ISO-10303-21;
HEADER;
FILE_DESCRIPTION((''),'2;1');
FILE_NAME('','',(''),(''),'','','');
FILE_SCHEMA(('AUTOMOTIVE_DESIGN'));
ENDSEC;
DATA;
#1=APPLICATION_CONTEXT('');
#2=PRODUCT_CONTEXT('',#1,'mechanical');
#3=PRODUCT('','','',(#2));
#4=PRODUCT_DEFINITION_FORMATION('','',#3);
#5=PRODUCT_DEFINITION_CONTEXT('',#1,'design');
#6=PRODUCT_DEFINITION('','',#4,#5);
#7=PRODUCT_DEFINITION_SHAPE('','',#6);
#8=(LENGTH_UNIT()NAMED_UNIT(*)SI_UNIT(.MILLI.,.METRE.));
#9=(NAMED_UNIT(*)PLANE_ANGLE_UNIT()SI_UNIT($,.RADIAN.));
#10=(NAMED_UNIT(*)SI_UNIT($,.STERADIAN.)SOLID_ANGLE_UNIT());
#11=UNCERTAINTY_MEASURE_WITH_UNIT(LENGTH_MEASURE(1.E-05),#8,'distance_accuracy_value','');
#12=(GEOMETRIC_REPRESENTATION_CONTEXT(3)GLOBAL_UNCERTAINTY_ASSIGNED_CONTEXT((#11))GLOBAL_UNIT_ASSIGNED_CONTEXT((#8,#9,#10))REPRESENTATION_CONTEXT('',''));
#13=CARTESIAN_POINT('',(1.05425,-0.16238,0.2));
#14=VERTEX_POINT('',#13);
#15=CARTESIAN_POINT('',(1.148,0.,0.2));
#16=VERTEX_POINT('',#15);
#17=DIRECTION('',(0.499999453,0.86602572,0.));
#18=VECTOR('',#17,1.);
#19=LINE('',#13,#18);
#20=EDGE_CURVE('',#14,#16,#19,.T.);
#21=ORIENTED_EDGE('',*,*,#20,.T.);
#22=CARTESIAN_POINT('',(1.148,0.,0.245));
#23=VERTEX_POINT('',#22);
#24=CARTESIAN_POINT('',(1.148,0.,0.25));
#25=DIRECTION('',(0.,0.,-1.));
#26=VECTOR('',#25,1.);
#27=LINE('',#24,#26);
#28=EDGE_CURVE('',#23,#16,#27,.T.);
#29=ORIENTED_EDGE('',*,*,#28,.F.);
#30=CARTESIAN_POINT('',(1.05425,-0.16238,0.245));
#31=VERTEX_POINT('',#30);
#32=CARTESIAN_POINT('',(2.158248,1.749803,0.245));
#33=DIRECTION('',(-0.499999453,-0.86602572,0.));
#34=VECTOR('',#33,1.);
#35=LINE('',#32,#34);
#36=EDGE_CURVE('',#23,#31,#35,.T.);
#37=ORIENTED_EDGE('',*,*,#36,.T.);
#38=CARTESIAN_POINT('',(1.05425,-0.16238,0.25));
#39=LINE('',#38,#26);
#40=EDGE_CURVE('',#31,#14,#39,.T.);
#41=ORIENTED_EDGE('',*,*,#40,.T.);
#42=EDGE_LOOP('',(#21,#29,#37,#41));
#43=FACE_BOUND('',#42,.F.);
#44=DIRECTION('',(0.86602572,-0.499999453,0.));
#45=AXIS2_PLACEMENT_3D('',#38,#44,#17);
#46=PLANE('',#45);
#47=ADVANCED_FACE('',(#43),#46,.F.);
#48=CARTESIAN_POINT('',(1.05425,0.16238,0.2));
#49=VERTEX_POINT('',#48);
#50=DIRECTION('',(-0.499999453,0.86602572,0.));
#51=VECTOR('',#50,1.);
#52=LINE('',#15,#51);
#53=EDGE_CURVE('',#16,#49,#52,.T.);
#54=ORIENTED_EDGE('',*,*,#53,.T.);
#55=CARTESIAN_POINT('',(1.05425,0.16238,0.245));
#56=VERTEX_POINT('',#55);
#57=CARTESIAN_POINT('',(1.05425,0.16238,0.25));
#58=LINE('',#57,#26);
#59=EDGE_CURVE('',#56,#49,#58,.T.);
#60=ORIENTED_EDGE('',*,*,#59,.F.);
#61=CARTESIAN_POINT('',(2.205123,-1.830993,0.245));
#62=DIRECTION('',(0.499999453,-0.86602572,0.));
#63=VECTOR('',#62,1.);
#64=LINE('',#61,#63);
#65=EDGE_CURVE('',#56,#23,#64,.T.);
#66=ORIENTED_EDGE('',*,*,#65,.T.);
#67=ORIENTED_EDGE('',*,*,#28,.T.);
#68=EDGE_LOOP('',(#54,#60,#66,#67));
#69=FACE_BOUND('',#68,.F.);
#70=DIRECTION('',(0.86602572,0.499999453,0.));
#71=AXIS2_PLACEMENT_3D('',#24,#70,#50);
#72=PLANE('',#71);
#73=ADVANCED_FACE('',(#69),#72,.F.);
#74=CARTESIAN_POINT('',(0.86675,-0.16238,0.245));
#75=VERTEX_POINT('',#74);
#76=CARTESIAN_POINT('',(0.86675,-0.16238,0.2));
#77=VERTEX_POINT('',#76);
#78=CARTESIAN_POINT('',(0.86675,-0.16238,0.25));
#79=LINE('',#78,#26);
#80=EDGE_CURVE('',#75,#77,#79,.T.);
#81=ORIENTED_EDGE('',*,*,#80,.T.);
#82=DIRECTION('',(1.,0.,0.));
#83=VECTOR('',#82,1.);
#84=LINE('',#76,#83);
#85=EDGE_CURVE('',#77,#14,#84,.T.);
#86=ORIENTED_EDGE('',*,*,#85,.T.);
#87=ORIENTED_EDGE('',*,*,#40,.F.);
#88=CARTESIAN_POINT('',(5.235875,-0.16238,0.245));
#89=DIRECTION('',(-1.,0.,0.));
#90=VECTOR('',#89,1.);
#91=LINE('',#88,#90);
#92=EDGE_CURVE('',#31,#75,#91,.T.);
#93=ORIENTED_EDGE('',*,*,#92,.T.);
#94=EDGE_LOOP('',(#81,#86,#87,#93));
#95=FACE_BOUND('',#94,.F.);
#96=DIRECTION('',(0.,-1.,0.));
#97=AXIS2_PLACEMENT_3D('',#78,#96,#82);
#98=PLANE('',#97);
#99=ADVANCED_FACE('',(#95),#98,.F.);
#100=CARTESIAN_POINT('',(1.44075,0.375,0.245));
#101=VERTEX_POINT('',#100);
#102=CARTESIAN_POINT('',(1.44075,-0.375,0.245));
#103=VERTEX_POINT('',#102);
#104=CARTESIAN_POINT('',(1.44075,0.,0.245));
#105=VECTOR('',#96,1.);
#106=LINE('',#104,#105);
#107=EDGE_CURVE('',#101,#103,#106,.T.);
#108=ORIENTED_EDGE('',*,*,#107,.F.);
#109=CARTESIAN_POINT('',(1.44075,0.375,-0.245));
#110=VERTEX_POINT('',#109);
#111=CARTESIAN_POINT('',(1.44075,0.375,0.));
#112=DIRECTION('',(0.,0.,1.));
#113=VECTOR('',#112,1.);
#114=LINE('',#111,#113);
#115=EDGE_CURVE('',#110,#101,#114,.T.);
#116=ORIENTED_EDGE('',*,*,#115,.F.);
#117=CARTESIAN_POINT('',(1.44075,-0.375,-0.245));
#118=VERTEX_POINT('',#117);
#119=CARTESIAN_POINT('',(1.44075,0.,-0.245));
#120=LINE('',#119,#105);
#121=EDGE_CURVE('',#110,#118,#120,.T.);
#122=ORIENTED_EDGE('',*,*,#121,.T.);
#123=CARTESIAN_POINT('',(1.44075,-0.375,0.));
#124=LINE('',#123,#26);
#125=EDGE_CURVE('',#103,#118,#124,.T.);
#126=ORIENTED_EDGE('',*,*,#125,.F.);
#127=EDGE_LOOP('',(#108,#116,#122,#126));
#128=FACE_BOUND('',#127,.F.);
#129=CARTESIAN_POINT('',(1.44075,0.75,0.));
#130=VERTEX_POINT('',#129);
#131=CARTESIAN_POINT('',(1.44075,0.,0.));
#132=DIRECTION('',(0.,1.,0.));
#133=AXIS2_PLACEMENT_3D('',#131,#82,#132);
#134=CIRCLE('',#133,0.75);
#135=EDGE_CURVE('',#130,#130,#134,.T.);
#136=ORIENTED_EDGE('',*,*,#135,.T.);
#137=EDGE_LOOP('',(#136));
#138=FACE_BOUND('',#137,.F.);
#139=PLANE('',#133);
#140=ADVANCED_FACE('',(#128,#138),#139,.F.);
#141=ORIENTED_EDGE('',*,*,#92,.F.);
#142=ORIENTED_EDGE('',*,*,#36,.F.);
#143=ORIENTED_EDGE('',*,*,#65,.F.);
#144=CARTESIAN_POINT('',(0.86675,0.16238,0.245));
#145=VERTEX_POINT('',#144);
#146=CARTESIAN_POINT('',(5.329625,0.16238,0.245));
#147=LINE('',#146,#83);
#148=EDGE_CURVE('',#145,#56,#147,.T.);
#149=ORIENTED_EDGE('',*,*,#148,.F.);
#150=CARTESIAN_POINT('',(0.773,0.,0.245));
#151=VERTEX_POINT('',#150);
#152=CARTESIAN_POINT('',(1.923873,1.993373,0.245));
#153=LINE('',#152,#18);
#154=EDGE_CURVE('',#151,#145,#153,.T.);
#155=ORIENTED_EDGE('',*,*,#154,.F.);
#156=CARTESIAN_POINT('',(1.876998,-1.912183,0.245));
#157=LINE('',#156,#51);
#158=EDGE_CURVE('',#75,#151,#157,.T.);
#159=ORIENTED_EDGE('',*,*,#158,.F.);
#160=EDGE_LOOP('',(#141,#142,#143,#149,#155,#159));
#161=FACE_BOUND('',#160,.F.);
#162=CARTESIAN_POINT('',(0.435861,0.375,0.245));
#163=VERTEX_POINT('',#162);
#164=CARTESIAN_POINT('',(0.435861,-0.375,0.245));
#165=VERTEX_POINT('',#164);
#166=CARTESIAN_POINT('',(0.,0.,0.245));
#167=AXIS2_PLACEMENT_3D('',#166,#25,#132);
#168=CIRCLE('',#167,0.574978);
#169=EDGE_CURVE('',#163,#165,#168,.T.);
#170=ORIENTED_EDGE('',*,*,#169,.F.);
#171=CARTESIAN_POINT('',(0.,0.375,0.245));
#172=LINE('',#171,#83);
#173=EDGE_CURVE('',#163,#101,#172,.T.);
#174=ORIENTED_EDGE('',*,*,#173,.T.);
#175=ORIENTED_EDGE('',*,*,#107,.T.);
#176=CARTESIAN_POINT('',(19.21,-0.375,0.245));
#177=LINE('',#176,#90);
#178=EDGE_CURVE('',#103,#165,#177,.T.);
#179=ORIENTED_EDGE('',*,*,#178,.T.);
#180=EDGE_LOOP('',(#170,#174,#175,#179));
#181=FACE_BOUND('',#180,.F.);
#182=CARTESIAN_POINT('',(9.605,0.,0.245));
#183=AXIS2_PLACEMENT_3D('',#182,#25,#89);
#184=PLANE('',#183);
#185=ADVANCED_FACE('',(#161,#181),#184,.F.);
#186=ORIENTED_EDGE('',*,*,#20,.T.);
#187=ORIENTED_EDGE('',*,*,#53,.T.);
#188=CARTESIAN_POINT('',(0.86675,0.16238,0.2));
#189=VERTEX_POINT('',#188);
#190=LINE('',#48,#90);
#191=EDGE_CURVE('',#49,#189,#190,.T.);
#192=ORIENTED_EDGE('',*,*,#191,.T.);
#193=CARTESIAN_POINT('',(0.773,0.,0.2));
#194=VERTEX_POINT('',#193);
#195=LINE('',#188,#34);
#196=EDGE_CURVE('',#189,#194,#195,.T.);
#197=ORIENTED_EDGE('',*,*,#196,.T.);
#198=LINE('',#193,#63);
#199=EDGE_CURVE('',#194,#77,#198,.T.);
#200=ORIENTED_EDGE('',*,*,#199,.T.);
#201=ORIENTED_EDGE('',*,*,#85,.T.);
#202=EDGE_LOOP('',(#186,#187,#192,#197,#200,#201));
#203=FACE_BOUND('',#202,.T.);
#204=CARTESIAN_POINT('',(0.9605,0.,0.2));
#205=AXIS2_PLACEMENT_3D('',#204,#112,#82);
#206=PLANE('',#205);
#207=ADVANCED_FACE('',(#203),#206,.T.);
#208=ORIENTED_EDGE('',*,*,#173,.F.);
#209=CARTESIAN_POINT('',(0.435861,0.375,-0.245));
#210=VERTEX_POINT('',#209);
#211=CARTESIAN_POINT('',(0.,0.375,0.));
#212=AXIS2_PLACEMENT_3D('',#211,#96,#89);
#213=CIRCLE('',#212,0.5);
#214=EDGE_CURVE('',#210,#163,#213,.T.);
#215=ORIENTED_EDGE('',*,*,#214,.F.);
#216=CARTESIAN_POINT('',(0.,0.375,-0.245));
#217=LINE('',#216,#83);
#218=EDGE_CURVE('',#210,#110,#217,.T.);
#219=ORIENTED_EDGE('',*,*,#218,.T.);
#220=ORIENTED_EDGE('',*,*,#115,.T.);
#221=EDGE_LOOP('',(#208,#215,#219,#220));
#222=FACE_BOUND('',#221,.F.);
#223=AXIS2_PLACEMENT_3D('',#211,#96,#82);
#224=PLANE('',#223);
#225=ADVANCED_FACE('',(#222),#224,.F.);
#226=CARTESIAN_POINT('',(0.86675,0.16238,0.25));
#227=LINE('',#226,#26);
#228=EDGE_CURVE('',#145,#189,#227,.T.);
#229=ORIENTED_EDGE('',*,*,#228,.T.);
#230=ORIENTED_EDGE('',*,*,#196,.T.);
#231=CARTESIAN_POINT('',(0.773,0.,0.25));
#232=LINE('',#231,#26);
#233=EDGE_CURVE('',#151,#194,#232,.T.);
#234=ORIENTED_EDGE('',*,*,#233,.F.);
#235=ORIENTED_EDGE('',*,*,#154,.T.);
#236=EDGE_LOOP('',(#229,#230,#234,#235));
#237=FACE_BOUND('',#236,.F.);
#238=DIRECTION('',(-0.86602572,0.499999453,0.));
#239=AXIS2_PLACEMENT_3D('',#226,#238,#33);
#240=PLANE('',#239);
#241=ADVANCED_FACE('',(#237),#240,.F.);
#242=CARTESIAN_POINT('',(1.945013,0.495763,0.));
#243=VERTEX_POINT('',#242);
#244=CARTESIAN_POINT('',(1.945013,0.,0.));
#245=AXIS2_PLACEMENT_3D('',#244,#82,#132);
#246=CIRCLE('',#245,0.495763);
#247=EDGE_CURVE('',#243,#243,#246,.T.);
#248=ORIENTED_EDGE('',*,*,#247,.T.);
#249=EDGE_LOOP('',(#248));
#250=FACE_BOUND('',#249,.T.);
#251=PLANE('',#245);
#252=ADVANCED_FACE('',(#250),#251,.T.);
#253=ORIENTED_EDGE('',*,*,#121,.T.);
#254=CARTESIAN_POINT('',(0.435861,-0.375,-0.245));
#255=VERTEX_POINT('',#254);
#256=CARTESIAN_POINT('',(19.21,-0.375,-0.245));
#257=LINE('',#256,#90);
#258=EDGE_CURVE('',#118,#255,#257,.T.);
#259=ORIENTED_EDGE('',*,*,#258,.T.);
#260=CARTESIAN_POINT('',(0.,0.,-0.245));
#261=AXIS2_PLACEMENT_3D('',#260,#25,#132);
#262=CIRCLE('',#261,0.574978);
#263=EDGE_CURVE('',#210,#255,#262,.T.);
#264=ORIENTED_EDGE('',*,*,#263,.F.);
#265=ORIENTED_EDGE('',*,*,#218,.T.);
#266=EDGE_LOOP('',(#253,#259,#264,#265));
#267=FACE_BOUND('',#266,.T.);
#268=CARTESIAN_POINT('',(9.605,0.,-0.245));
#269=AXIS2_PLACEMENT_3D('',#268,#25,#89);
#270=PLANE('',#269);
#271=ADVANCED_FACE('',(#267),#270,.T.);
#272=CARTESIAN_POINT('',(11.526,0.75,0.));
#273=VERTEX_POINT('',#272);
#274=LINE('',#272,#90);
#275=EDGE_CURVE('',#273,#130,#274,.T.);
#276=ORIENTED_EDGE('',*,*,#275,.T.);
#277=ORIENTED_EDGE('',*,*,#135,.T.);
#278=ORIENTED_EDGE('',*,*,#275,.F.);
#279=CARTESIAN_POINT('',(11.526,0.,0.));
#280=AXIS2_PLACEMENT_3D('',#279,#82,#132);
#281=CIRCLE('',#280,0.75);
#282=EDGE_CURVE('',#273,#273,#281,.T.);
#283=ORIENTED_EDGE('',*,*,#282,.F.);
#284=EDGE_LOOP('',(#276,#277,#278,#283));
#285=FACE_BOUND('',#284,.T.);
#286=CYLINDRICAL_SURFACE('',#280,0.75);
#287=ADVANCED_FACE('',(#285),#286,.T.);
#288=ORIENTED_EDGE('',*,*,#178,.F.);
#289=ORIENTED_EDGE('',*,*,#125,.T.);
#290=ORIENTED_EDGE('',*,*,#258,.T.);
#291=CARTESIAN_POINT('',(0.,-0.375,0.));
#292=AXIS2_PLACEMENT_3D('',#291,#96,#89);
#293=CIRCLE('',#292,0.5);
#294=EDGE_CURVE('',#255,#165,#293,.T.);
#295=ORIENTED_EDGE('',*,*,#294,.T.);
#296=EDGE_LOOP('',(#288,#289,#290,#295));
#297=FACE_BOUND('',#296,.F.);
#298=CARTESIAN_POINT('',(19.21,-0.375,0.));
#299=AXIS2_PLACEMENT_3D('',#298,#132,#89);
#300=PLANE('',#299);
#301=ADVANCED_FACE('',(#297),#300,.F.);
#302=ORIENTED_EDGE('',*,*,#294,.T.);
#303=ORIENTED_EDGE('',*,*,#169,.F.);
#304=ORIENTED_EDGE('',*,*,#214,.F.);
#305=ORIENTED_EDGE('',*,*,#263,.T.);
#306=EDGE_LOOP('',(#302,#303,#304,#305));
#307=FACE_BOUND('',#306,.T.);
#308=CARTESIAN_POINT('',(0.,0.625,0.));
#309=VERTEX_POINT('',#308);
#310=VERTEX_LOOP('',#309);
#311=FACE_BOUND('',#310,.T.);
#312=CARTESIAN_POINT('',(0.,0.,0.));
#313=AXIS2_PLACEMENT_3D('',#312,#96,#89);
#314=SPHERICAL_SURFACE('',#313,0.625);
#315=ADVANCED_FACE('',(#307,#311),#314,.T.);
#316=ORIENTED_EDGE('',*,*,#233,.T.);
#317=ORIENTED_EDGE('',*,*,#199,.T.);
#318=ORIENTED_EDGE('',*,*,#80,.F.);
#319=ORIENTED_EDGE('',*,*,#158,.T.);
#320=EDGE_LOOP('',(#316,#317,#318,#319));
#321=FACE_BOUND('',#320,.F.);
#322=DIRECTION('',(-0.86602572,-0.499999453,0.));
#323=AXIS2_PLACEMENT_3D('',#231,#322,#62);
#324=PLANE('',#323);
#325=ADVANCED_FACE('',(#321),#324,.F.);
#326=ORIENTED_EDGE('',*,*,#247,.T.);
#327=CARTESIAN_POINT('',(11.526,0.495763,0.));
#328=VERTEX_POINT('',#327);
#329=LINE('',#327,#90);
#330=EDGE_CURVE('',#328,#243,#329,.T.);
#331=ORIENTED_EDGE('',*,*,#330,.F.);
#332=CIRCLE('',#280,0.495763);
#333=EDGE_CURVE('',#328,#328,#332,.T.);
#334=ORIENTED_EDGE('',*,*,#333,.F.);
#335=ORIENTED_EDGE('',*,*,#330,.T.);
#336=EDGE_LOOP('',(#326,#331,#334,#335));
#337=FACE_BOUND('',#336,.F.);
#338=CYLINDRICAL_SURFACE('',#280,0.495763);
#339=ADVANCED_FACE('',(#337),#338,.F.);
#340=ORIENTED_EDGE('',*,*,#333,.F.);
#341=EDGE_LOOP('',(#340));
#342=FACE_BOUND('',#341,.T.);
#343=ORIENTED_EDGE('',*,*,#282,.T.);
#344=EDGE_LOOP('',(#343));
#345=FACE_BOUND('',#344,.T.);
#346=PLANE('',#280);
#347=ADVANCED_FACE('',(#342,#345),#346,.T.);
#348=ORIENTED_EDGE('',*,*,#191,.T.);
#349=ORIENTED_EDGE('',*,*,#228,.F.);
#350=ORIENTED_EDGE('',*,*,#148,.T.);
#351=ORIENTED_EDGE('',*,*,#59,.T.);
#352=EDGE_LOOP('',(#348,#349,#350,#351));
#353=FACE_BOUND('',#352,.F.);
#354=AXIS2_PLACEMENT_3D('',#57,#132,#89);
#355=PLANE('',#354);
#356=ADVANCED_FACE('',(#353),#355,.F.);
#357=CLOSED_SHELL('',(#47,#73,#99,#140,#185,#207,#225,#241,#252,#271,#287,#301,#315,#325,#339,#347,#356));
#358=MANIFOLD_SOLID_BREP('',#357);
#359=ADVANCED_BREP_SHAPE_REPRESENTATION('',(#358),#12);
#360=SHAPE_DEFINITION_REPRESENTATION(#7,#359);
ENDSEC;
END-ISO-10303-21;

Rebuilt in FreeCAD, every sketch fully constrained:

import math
import FreeCAD as App
import Part
import Sketcher
from FreeCAD import Vector


def add_polygon(sketch, points):
    """Adds a closed chain of lines whose ends are joined by coincident constraints."""
    first, n = sketch.GeometryCount, len(points)
    for a, b in zip(points, points[1:] + points[:1]):
        sketch.addGeometry(Part.LineSegment(App.Vector(*a, 0), App.Vector(*b, 0)), False)
    for i in range(n):
        sketch.addConstraint(Sketcher.Constraint("Coincident", first + i, 2, first + (i + 1) % n, 1))

doc = App.newDocument("Part")
body = doc.addObject("PartDesign::Body", "Body")

# Sketch on XY plane
sketch1 = doc.addObject("Sketcher::SketchObject", "Sketch")
body.addObject(sketch1)
sketch1.AttachmentSupport = (doc.XY_Plane, [""])
sketch1.MapMode = "FlatFace"
sketch1.addGeometry([
    Part.LineSegment(Vector(19.21, 0.38, 0), Vector(0, 0.38, 0)),
    Part.ArcOfCircle(Part.Circle(Vector(0, 0, 0), Vector(0, 0, 1), 0.38), math.radians(90), math.radians(270)),
    Part.LineSegment(Vector(0, -0.38, 0), Vector(19.21, -0.38, 0)),
    Part.ArcOfCircle(Part.Circle(Vector(19.21, 0, 0), Vector(0, 0, 1), 0.38), math.radians(-90), math.radians(90)),
], False)
sketch1.addConstraint([
    Sketcher.Constraint("Tangent", 0, 2, 1, 1),
    Sketcher.Constraint("Tangent", 1, 2, 2, 1),
    Sketcher.Constraint("Tangent", 2, 2, 3, 1),
    Sketcher.Constraint("Tangent", 3, 2, 0, 1),
    Sketcher.Constraint("Horizontal", 0),
    Sketcher.Constraint("Horizontal", 2),
    Sketcher.Constraint("Coincident", 1, 3, -1, 1),
    Sketcher.Constraint("Radius", 1, 0.375),
    Sketcher.Constraint("DistanceX", 0, 2, 0, 1, 19.21),
])
pad1 = doc.addObject("PartDesign::Pad", "Pad")
body.addObject(pad1)
pad1.Profile = sketch1
pad1.Length = 0.49
pad1.Midplane = True

# Sketch on XY plane
sketch2 = doc.addObject("Sketcher::SketchObject", "Sketch001")
body.addObject(sketch2)
sketch2.AttachmentSupport = (doc.XY_Plane, [""])
sketch2.MapMode = "FlatFace"
sketch2.addGeometry([
    Part.LineSegment(Vector(0, -0.6, 0), Vector(0, 0.6, 0)),
    Part.ArcOfCircle(Part.Circle(Vector(0, 0, 0), Vector(0, 0, 1), 0.6), math.radians(90), math.radians(270)),
], False)
sketch2.addConstraint([
    Sketcher.Constraint("Coincident", 0, 1, 1, 2),
    Sketcher.Constraint("Coincident", 1, 1, 0, 2),
    Sketcher.Constraint("Vertical", 0),
    Sketcher.Constraint("Coincident", 1, 3, -1, 1),
    Sketcher.Constraint("PointOnObject", 0, 1, -2),
    Sketcher.Constraint("Radius", 1, 0.625),
])
revolution = doc.addObject("PartDesign::Revolution", "Revolution")
body.addObject(revolution)
revolution.Profile = sketch2
revolution.ReferenceAxis = (sketch2, ["V_Axis"])
revolution.Angle = 360

# Sketch on XY plane
sketch3 = doc.addObject("Sketcher::SketchObject", "Sketch002")
body.addObject(sketch3)
sketch3.AttachmentSupport = (doc.XY_Plane, [""])
sketch3.MapMode = "FlatFace"
sketch3.addGeometry([
    Part.ArcOfCircle(Part.Circle(Vector(19.2, 0, 0), Vector(0, 0, 1), 0.6), math.radians(-90), math.radians(90)),
    Part.LineSegment(Vector(19.2, 0.6, 0), Vector(19.2, -0.6, 0)),
], False)
sketch3.addGeometry(Part.LineSegment(Vector(19.2, 0.6, 0), Vector(19.2, -0.6, 0)), True)  # axis
sketch3.addConstraint([
    Sketcher.Constraint("Coincident", 0, 1, 1, 2),
    Sketcher.Constraint("Coincident", 1, 1, 0, 2),
    Sketcher.Constraint("Vertical", 1),
    Sketcher.Constraint("Vertical", 2),
    Sketcher.Constraint("Coincident", 2, 1, 1, 1),
    Sketcher.Constraint("PointOnObject", 0, 3, -1),
    Sketcher.Constraint("Equal", 1, 2),
    Sketcher.Constraint("Radius", 0, 0.625),
    Sketcher.Constraint("DistanceX", -1, 1, 0, 3, 19.21),
    Sketcher.Constraint("DistanceX", -1, 1, 0, 1, 19.21),
])
revolution2 = doc.addObject("PartDesign::Revolution", "Revolution001")
body.addObject(revolution2)
revolution2.Profile = sketch3
revolution2.ReferenceAxis = (sketch3, ["Axis0"])
revolution2.Angle = 360

# Sketch on XY plane
sketch4 = doc.addObject("Sketcher::SketchObject", "Sketch003")
body.addObject(sketch4)
sketch4.AttachmentSupport = (doc.XY_Plane, [""])
sketch4.MapMode = "FlatFace"
sketch4.AttachmentOffset = App.Placement(Vector(0, 0, 0.25), App.Rotation())
add_polygon(sketch4, [(1.05, -0.16), (1.15, 0), (1.05, 0.16), (0.87, 0.16), (0.77, 0), (0.87, -0.16)])  # lines 0-5
sketch4.addConstraint([
    Sketcher.Constraint("Horizontal", 2),
    Sketcher.Constraint("Horizontal", 5),
    Sketcher.Constraint("Symmetric", 2, 2, 4, 2, -1),
    Sketcher.Constraint("PointOnObject", 0, 2, -1),
    Sketcher.Constraint("PointOnObject", 3, 2, -1),
    Sketcher.Constraint("Parallel", 0, 3),
    Sketcher.Constraint("Parallel", 1, 4),
    Sketcher.Constraint("DistanceX", 2, 2, 2, 1, 0.1875),
    Sketcher.Constraint("DistanceX", -1, 1, 0, 2, 1.148),
    Sketcher.Constraint("DistanceX", -1, 1, 3, 2, 0.773),
    Sketcher.Constraint("Distance", 0, 0.1875),
])
pocket1 = doc.addObject("PartDesign::Pocket", "Pocket")
body.addObject(pocket1)
pocket1.Profile = sketch4
pocket1.Length = 0.05

# Sketch on YZ plane
sketch5 = doc.addObject("Sketcher::SketchObject", "Sketch004")
body.addObject(sketch5)
sketch5.AttachmentSupport = (doc.YZ_Plane, [""])
sketch5.MapMode = "FlatFace"
sketch5.AttachmentOffset = App.Placement(Vector(0, 0, 11.526), App.Rotation())
sketch5.addGeometry(Part.Circle(Vector(0, 0, 0), Vector(0, 0, 1), 0.8), False)
sketch5.addConstraint([
    Sketcher.Constraint("Coincident", 0, 3, -1, 1),
    Sketcher.Constraint("Diameter", 0, 1.5),
])
pad2 = doc.addObject("PartDesign::Pad", "Pad001")
body.addObject(pad2)
pad2.Profile = sketch5
pad2.Length = 10.08525
pad2.Reversed = True

# Sketch on YZ plane
sketch6 = doc.addObject("Sketcher::SketchObject", "Sketch005")
body.addObject(sketch6)
sketch6.AttachmentSupport = (doc.YZ_Plane, [""])
sketch6.MapMode = "FlatFace"
sketch6.AttachmentOffset = App.Placement(Vector(0, 0, 11.526), App.Rotation())
sketch6.addGeometry(Part.Circle(Vector(0, 0, 0), Vector(0, 0, 1), 3), False)
sketch6.addConstraint([
    Sketcher.Constraint("Coincident", 0, 3, -1, 1),
    Sketcher.Constraint("Diameter", 0, 6.0),
])
pocket2 = doc.addObject("PartDesign::Pocket", "Pocket001")
body.addObject(pocket2)
pocket2.Profile = sketch6
pocket2.Length = 26
pocket2.Reversed = True

# Sketch on YZ plane
sketch7 = doc.addObject("Sketcher::SketchObject", "Sketch006")
body.addObject(sketch7)
sketch7.AttachmentSupport = (doc.YZ_Plane, [""])
sketch7.MapMode = "FlatFace"
sketch7.AttachmentOffset = App.Placement(Vector(0, 0, 11.526), App.Rotation())
sketch7.addGeometry(Part.Circle(Vector(0, 0, 0), Vector(0, 0, 1), 0.5), False)
sketch7.addConstraint([
    Sketcher.Constraint("Coincident", 0, 3, -1, 1),
    Sketcher.Constraint("Diameter", 0, 0.991526),
])
pocket3 = doc.addObject("PartDesign::Pocket", "Pocket002")
body.addObject(pocket3)
pocket3.Profile = sketch7
pocket3.Length = 9.580987

doc.recompute()
